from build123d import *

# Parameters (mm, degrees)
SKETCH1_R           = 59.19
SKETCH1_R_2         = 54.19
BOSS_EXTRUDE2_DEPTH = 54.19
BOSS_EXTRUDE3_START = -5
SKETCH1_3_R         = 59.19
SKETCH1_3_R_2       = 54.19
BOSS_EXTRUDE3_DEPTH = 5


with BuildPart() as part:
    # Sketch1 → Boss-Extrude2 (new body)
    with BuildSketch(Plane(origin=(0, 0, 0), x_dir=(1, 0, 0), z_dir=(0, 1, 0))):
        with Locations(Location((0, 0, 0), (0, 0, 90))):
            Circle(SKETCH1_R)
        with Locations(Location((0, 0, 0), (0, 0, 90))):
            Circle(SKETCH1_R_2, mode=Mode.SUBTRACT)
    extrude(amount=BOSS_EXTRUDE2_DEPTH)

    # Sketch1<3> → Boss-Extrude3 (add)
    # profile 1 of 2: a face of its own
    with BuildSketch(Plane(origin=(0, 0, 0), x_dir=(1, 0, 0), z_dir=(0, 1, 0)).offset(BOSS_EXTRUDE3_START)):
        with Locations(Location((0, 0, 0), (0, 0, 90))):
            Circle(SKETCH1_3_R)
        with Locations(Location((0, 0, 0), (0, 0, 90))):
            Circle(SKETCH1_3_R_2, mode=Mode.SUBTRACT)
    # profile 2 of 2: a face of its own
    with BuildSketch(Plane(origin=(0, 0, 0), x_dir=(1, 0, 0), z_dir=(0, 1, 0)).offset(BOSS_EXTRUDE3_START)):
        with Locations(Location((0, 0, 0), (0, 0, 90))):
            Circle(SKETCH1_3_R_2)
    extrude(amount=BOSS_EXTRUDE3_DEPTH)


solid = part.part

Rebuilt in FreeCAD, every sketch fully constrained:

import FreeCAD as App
import Part
import Sketcher

doc = App.newDocument("Part")
body = doc.addObject("PartDesign::Body", "Body")

sketch1 = body.newObject("Sketcher::SketchObject", "Sketch")
sketch1.AttachmentSupport = (doc.getObject("XZ_Plane"), [""])
sketch1.MapMode = "FlatFace"
sketch1.addGeometry(Part.Circle(App.Vector(0, 0, 0), App.Vector(0, 0, 1), 59.19), False)
sketch1.addGeometry(Part.Circle(App.Vector(0, 0, 0), App.Vector(0, 0, 1), 54.19), False)
sketch1.addConstraint(Sketcher.Constraint("Coincident", 0, 3, -1, 1))
sketch1.addConstraint(Sketcher.Constraint("Coincident", 1, 3, -1, 1))
sketch1.addConstraint(Sketcher.Constraint("Diameter", 0, 118.38))
sketch1.addConstraint(Sketcher.Constraint("Diameter", 1, 108.38))
pad1 = body.newObject("PartDesign::Pad", "Pad")
pad1.Profile = sketch1
pad1.Length = 54.19
pad1.Reversed = True

sketch2 = body.newObject("Sketcher::SketchObject", "Sketch001")
sketch2.AttachmentSupport = (doc.getObject("XZ_Plane"), [""])
sketch2.MapMode = "FlatFace"
sketch2.AttachmentOffset = App.Placement(App.Vector(0, 0, 5), App.Rotation())
sketch2.addGeometry(Part.Circle(App.Vector(0, 0, 0), App.Vector(0, 0, 1), 59.19), False)
sketch2.addConstraint(Sketcher.Constraint("Coincident", 0, 3, -1, 1))
sketch2.addConstraint(Sketcher.Constraint("Diameter", 0, 118.38))
pad2 = body.newObject("PartDesign::Pad", "Pad001")
pad2.Profile = sketch2
pad2.Length = 5
pad2.Reversed = True

doc.recompute()
